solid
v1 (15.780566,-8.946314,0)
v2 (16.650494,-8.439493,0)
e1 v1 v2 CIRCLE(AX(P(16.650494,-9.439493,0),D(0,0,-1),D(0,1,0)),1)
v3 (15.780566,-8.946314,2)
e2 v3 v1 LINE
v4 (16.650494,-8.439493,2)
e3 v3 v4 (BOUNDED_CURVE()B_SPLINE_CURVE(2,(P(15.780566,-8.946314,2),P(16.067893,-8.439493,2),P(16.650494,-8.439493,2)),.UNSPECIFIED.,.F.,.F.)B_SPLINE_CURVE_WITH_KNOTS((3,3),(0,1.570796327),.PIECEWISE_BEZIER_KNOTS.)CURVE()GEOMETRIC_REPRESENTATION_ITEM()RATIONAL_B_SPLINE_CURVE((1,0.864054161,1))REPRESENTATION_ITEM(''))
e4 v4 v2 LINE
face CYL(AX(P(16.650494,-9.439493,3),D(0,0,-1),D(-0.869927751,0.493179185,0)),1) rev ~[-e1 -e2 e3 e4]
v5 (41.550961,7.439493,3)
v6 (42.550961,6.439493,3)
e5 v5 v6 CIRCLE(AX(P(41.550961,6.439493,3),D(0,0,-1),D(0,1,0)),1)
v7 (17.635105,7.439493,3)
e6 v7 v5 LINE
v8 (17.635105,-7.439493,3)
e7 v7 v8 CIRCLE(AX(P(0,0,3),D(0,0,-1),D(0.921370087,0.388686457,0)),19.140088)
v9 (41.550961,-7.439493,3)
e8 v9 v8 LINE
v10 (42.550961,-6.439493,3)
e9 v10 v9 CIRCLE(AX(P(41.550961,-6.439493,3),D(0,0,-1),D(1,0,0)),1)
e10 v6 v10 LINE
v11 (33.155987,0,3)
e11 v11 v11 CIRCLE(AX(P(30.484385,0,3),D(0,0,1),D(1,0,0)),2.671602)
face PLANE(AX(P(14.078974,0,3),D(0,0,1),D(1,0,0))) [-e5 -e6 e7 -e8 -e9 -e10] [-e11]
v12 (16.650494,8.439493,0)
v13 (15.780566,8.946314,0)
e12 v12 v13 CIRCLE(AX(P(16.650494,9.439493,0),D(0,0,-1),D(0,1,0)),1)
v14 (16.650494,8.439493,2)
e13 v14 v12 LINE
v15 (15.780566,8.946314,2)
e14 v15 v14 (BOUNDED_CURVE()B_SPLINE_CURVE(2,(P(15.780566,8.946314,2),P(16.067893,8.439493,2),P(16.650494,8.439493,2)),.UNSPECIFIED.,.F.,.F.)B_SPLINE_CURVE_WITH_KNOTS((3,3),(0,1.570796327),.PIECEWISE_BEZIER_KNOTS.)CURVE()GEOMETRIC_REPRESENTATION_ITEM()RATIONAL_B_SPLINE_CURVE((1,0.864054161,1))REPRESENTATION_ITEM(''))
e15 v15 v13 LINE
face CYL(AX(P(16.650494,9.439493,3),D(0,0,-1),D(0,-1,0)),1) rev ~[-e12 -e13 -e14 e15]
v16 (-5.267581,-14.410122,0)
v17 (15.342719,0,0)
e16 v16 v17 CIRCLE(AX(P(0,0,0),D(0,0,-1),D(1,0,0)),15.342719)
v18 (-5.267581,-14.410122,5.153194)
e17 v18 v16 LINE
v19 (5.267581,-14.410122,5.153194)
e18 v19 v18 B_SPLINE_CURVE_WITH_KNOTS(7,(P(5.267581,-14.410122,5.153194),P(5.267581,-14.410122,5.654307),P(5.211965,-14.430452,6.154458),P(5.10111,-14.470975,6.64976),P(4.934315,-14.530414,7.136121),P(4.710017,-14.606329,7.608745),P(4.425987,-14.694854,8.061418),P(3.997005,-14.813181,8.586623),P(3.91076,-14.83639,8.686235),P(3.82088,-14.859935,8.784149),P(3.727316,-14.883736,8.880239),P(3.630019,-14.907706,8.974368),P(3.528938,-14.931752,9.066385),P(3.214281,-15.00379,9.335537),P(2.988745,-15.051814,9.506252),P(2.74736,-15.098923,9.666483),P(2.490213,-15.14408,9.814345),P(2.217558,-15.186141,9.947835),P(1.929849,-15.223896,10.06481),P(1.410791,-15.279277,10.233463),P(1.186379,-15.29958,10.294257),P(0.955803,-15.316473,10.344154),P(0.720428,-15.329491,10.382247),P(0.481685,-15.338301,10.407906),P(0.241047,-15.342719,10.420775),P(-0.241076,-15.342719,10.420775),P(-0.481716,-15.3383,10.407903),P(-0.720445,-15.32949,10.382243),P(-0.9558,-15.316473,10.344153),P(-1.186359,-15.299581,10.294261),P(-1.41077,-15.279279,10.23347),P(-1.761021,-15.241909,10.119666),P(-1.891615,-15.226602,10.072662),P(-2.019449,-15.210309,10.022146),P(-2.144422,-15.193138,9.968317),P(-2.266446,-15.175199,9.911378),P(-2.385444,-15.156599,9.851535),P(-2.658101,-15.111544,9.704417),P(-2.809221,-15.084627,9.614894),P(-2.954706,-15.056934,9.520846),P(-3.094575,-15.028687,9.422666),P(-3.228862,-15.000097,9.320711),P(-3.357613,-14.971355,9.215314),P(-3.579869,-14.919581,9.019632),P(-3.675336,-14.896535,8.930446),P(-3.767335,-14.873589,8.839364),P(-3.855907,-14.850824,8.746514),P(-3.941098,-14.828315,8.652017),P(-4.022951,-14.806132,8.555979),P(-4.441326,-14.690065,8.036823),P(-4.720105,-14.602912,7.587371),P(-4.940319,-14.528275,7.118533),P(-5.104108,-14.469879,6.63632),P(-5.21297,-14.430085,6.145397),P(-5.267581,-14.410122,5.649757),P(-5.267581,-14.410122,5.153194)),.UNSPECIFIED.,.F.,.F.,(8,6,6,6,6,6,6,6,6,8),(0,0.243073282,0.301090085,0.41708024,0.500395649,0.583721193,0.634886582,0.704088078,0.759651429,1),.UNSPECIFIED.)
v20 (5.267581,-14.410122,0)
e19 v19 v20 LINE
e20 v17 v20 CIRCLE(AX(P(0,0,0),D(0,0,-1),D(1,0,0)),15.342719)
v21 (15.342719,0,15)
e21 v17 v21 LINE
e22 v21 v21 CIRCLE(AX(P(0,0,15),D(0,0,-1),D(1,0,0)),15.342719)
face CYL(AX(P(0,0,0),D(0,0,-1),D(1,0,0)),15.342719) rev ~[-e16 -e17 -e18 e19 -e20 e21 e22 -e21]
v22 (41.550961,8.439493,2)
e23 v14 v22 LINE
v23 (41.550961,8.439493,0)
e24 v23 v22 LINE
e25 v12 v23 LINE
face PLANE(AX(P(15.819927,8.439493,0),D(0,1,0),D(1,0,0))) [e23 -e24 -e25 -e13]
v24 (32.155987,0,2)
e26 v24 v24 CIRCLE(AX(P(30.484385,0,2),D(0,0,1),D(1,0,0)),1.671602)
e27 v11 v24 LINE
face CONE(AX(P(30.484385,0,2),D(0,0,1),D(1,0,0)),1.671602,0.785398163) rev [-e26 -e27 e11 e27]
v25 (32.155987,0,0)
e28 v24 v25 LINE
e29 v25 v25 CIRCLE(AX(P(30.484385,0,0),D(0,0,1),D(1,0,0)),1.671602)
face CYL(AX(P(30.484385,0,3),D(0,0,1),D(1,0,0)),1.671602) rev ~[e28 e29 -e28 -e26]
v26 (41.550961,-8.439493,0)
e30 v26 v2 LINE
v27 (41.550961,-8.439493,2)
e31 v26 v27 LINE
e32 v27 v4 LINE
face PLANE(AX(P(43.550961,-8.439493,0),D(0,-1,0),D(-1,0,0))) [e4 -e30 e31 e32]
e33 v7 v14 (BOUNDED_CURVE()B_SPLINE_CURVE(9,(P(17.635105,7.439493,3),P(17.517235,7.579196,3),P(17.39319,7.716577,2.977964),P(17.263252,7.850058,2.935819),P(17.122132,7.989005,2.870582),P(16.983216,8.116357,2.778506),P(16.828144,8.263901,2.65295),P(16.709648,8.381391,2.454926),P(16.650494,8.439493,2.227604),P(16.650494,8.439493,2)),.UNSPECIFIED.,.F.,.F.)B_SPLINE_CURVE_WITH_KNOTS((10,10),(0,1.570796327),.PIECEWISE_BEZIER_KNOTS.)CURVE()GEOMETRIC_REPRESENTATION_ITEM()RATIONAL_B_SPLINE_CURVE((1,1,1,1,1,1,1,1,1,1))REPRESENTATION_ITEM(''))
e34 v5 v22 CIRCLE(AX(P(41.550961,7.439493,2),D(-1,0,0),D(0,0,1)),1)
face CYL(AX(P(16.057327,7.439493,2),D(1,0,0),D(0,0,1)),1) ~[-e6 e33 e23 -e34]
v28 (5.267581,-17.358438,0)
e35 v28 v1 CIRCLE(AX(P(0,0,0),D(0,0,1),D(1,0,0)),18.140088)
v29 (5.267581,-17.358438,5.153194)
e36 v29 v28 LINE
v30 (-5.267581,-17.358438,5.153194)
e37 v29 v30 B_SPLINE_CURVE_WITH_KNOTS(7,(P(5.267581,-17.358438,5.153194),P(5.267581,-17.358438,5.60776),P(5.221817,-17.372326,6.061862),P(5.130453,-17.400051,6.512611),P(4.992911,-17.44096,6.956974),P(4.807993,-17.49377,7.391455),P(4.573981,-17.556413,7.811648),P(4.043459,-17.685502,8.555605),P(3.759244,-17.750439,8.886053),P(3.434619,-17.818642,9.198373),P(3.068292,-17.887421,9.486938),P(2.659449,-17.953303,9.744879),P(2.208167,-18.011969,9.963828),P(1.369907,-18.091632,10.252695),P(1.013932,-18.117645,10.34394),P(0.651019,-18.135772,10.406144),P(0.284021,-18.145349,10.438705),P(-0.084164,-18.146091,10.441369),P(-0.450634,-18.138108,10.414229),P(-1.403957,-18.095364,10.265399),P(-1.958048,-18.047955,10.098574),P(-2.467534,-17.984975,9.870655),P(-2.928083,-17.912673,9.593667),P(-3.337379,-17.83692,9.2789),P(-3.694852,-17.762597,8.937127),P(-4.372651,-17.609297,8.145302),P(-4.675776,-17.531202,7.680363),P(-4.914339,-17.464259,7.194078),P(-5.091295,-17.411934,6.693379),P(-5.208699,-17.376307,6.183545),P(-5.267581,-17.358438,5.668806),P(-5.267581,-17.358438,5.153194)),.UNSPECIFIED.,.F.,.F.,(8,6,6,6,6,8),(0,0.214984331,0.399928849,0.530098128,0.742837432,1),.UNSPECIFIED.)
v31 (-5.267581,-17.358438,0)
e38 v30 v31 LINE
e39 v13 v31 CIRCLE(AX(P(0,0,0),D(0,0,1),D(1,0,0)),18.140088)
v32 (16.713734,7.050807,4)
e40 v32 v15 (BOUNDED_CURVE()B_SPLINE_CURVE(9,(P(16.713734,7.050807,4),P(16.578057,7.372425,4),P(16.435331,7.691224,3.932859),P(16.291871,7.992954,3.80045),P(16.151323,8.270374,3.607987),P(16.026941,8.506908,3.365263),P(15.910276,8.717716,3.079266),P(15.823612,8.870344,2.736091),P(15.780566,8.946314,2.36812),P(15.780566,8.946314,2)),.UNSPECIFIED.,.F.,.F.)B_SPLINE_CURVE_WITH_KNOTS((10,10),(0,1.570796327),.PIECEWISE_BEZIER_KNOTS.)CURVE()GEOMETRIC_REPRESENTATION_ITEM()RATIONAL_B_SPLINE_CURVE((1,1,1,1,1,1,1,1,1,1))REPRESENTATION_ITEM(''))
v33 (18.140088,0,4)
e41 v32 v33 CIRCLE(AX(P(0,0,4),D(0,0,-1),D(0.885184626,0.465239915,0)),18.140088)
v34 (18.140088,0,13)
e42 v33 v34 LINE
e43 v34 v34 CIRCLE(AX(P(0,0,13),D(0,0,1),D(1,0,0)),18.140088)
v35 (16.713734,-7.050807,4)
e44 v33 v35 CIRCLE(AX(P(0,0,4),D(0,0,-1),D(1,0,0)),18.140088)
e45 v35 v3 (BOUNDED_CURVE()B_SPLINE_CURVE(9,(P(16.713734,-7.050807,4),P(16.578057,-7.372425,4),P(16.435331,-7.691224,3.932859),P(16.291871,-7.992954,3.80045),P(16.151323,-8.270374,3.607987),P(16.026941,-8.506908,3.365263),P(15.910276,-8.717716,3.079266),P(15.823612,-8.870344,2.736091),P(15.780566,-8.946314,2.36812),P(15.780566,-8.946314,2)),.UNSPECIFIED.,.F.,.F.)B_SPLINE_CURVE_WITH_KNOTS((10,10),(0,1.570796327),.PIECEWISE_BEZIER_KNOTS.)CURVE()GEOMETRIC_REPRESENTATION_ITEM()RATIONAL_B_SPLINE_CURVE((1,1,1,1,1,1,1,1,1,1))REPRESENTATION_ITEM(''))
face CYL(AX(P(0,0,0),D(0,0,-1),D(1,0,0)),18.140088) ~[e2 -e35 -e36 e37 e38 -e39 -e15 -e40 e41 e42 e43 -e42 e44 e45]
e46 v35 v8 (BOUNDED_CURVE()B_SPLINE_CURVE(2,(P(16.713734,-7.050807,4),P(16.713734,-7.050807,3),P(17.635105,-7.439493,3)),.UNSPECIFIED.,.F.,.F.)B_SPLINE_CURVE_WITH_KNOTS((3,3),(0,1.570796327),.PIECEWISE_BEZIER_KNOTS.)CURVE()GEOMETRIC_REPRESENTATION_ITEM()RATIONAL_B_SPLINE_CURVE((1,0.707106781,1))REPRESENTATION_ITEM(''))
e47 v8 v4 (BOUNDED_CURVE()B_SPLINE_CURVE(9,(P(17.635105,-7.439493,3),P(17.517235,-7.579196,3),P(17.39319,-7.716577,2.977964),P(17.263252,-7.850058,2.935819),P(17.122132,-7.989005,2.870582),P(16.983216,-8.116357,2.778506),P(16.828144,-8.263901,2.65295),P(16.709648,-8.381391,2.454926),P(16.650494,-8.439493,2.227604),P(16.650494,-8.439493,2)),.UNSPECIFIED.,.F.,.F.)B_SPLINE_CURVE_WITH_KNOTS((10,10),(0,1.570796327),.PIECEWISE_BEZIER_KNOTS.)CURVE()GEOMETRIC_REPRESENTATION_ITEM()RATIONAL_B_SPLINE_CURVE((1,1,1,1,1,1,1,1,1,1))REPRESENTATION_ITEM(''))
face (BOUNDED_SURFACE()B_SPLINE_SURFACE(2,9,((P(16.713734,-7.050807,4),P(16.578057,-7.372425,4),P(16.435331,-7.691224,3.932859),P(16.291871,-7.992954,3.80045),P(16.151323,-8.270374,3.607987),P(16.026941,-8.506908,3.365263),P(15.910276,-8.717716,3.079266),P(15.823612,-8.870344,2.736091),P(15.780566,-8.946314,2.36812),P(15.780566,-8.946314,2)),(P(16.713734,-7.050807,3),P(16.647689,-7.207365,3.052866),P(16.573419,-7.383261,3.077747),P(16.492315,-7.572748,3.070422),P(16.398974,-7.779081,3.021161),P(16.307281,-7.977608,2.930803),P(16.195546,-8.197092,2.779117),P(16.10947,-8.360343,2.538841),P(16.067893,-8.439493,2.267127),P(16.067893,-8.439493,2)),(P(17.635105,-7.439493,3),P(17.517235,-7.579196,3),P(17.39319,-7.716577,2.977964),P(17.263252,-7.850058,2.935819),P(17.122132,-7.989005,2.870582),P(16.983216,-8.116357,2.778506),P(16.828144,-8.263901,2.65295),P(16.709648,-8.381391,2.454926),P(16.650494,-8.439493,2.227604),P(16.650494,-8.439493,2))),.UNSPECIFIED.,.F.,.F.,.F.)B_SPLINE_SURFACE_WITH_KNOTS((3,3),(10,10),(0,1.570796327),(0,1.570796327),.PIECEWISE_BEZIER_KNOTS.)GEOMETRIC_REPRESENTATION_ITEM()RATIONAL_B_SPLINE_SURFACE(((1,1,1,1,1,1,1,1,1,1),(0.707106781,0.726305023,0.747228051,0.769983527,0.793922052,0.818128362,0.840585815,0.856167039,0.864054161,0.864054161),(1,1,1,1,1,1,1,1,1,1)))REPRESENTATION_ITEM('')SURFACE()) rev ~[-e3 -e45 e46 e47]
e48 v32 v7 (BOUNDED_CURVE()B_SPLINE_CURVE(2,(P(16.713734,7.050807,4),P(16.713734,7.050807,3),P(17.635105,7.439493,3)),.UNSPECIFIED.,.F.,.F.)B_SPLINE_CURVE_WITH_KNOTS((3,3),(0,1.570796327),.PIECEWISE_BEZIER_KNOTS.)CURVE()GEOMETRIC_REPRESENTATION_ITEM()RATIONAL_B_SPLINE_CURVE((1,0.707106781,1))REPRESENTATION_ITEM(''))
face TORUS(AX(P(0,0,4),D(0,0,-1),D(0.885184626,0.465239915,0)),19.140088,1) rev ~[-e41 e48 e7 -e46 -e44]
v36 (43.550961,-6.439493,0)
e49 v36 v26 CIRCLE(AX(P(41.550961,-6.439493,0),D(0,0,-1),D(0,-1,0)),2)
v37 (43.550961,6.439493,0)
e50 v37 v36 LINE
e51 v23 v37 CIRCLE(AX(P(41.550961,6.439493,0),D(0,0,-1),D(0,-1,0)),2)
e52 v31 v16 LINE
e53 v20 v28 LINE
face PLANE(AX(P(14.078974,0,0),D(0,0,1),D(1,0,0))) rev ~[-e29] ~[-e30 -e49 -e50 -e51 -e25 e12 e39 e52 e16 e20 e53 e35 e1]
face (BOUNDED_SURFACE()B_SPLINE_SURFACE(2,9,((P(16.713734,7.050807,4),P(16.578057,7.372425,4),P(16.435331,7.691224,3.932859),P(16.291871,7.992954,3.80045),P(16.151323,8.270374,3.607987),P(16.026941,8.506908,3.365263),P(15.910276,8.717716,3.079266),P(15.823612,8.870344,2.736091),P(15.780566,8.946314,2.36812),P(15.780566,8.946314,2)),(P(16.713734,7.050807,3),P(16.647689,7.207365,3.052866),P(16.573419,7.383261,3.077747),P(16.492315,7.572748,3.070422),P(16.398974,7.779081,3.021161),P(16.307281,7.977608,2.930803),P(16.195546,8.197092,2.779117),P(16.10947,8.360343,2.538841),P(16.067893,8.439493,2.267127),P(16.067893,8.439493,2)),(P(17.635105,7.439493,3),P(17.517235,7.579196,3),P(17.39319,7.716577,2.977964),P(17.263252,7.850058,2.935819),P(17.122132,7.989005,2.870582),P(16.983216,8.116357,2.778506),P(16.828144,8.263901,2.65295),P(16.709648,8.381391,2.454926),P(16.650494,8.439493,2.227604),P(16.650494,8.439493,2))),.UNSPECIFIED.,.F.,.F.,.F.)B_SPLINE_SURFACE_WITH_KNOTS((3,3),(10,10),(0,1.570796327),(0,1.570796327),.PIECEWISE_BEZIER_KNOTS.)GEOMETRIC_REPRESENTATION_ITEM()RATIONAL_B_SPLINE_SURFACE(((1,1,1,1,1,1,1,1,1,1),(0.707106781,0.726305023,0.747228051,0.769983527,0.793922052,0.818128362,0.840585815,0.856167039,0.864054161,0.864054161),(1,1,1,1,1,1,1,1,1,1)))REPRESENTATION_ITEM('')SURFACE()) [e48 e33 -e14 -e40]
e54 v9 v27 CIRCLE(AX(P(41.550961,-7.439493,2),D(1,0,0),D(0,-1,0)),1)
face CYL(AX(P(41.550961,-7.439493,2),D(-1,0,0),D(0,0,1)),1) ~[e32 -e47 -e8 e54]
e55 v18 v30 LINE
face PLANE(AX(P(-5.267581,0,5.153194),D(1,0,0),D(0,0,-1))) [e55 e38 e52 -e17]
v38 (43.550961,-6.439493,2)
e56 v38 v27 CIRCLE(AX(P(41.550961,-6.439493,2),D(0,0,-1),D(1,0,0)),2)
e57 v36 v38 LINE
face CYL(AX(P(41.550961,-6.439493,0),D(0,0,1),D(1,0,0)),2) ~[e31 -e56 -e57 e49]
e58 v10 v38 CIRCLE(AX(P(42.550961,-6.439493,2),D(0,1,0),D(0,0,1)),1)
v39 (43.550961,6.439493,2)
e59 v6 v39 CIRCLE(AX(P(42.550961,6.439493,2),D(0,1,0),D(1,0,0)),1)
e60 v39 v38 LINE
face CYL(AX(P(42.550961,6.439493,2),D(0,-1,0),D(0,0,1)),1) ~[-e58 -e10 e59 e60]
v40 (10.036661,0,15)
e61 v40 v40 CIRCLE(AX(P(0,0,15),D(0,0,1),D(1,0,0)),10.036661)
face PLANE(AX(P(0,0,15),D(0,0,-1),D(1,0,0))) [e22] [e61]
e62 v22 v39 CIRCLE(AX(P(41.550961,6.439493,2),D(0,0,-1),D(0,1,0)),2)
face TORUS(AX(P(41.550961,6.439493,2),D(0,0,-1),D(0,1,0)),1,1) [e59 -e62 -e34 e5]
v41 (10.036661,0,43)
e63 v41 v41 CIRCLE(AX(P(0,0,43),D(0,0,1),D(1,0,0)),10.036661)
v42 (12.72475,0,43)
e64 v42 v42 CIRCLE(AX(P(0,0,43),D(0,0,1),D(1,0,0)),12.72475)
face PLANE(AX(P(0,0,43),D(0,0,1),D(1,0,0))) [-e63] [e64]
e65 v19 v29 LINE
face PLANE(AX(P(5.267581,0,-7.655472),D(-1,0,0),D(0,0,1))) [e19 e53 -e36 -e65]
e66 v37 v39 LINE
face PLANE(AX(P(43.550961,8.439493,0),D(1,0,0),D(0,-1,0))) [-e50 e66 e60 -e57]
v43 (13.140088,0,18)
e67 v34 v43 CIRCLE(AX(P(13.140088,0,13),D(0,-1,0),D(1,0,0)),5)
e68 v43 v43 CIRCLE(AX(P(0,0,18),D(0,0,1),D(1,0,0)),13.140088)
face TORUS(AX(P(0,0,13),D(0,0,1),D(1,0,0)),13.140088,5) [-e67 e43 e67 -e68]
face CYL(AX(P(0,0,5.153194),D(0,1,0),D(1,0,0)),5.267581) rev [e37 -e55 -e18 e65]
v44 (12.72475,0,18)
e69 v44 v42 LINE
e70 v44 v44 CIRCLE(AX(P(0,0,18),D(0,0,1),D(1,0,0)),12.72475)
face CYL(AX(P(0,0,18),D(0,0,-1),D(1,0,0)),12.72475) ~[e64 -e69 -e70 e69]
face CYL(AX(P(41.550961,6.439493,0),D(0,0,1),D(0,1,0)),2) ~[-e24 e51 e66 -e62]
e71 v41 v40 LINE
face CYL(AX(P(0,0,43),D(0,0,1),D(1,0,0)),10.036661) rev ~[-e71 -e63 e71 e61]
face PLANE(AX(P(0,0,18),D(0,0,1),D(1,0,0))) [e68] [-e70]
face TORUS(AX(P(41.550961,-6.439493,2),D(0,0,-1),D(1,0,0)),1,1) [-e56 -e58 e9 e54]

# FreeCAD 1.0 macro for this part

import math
import FreeCAD as App
import Part
import Sketcher


def edges_at(feature, points):
    """Names of the edges that pass closest to the given points."""
    edges = feature.Shape.Edges
    near = lambda p: min(range(len(edges)), key=lambda i: edges[i].distToShape(Part.Vertex(*p))[0])
    return sorted({f"Edge{near(p) + 1}" for p in points})

doc = App.newDocument("Part")
body = doc.addObject("PartDesign::Body", "Body")

# Sketch on XY plane
sketch1 = body.newObject("Sketcher::SketchObject", "Sketch")
sketch1.AttachmentSupport = (doc.getObject("XY_Plane"), [""])
sketch1.MapMode = "FlatFace"
sketch1.addGeometry([
    Part.ArcOfCircle(Part.Circle(App.Vector(0, 0, 0), App.Vector(0, 0, 1), 18), math.radians(28), math.radians(332)),
    Part.LineSegment(App.Vector(16, -8, 0), App.Vector(44, -8, 0)),
    Part.LineSegment(App.Vector(44, -8, 0), App.Vector(44, 8, 0)),
    Part.LineSegment(App.Vector(44, 8, 0), App.Vector(16, 8, 0)),
], False)
sketch1.addConstraint([
    Sketcher.Constraint("Coincident", 0, 2, 1, 1),
    Sketcher.Constraint("Coincident", 1, 2, 2, 1),
    Sketcher.Constraint("Coincident", 2, 2, 3, 1),
    Sketcher.Constraint("Coincident", 3, 2, 0, 1),
    Sketcher.Constraint("Horizontal", 1),
    Sketcher.Constraint("Vertical", 2),
    Sketcher.Constraint("Horizontal", 3),
    Sketcher.Constraint("Coincident", 0, 3, -1, 1),
    Sketcher.Constraint("Vertical", 0, 2, 3, 2),
    Sketcher.Constraint("Radius", 0, 17.930285),
    Sketcher.Constraint("DistanceX", 1, 1, 1, 2, 27.731034),
    Sketcher.Constraint("DistanceY", 2, 1, 2, 2, 16.878986),
])
pad1 = body.newObject("PartDesign::Pad", "Pad")
pad1.Profile = sketch1
pad1.Length = 3

# Sketch on XY plane
sketch2 = body.newObject("Sketcher::SketchObject", "Sketch001")
sketch2.AttachmentSupport = (doc.getObject("XY_Plane"), [""])
sketch2.MapMode = "FlatFace"
sketch2.addGeometry(Part.Circle(App.Vector(0, 0, 0), App.Vector(0, 0, 1), 18), False)
sketch2.addConstraint([
    Sketcher.Constraint("Coincident", 0, 3, -1, 1),
    Sketcher.Constraint("Diameter", 0, 36.280176),
])
pad2 = body.newObject("PartDesign::Pad", "Pad001")
pad2.Profile = sketch2
pad2.Length = 18

# Sketch on XY plane
sketch3 = body.newObject("Sketcher::SketchObject", "Sketch002")
sketch3.AttachmentSupport = (doc.getObject("XY_Plane"), [""])
sketch3.MapMode = "FlatFace"
sketch3.AttachmentOffset = App.Placement(App.Vector(0, 0, 18), App.Rotation())
sketch3.addGeometry(Part.Circle(App.Vector(0, 0, 0), App.Vector(0, 0, 1), 13), False)
sketch3.addConstraint([
    Sketcher.Constraint("Coincident", 0, 3, -1, 1),
    Sketcher.Constraint("Diameter", 0, 25.4495),
])
pad3 = body.newObject("PartDesign::Pad", "Pad002")
pad3.Profile = sketch3
pad3.Length = 25
doc.recompute()

fillet = body.newObject("PartDesign::Fillet", "Fillet")
fillet.Base = (pad3, edges_at(pad3, [(-18.14, 0, 18)]))
fillet.Radius = 5

# Sketch on XY plane
sketch4 = body.newObject("Sketcher::SketchObject", "Sketch003")
sketch4.AttachmentSupport = (doc.getObject("XY_Plane"), [""])
sketch4.MapMode = "FlatFace"
sketch4.AttachmentOffset = App.Placement(App.Vector(0, 0, 43), App.Rotation())
sketch4.addGeometry(Part.Circle(App.Vector(0, 0, 0), App.Vector(0, 0, 1), 10), False)
sketch4.addConstraint([
    Sketcher.Constraint("Coincident", 0, 3, -1, 1),
    Sketcher.Constraint("Diameter", 0, 20.073322),
])
pocket1 = body.newObject("PartDesign::Pocket", "Pocket")
pocket1.Profile = sketch4
pocket1.Length = 39

# Sketch on XY plane
sketch5 = body.newObject("Sketcher::SketchObject", "Sketch004")
sketch5.AttachmentSupport = (doc.getObject("XY_Plane"), [""])
sketch5.MapMode = "FlatFace"
sketch5.addGeometry(Part.Circle(App.Vector(0, 0, 0), App.Vector(0, 0, 1), 15), False)
sketch5.addConstraint([
    Sketcher.Constraint("Coincident", 0, 3, -1, 1),
    Sketcher.Constraint("Diameter", 0, 30.685438),
])
pocket2 = body.newObject("PartDesign::Pocket", "Pocket001")
pocket2.Profile = sketch5
pocket2.Length = 15
pocket2.Reversed = True

# Sketch on XY plane
sketch6 = body.newObject("Sketcher::SketchObject", "Sketch005")
sketch6.AttachmentSupport = (doc.getObject("XY_Plane"), [""])
sketch6.MapMode = "FlatFace"
sketch6.AttachmentOffset = App.Placement(App.Vector(0, 0, 3), App.Rotation())
sketch6.addGeometry(Part.Circle(App.Vector(30.5, 0, 0), App.Vector(0, 0, 1), 1.7), False)
sketch6.addConstraint([
    Sketcher.Constraint("PointOnObject", 0, 3, -1),
    Sketcher.Constraint("Diameter", 0, 3.343204),
    Sketcher.Constraint("DistanceX", -1, 1, 0, 3, 30.484385),
])
pocket3 = body.newObject("PartDesign::Pocket", "Pocket002")
pocket3.Profile = sketch6
pocket3.Length = 9
doc.recompute()

chamfer = body.newObject("PartDesign::Chamfer", "Chamfer")
chamfer.Base = (pocket3, edges_at(pocket3, [(28.813, 0, 3)]))
chamfer.Size = 1

# Sketch on XZ plane
sketch7 = body.newObject("Sketcher::SketchObject", "Sketch006")
sketch7.AttachmentSupport = (doc.getObject("XZ_Plane"), [""])
sketch7.MapMode = "FlatFace"
sketch7.addGeometry([
    Part.ArcOfCircle(Part.Circle(App.Vector(0, 5, 0), App.Vector(0, 0, 1), 5), math.radians(0), math.radians(180)),
    Part.LineSegment(App.Vector(-5, 5, 0), App.Vector(-5, -8, 0)),
    Part.ArcOfCircle(Part.Circle(App.Vector(0, -8, 0), App.Vector(0, 0, 1), 5), math.radians(180), math.radians(360)),
    Part.LineSegment(App.Vector(5, -8, 0), App.Vector(5, 5, 0)),
], False)
sketch7.addConstraint([
    Sketcher.Constraint("Tangent", 0, 2, 1, 1),
    Sketcher.Constraint("Tangent", 1, 2, 2, 1),
    Sketcher.Constraint("Tangent", 2, 2, 3, 1),
    Sketcher.Constraint("Tangent", 3, 2, 0, 1),
    Sketcher.Constraint("Vertical", 1),
    Sketcher.Constraint("Vertical", 3),
    Sketcher.Constraint("PointOnObject", 0, 3, -2),
    Sketcher.Constraint("Radius", 0, 5.267581),
    Sketcher.Constraint("DistanceY", 1, 2, 1, 1, 12.808666),
    Sketcher.Constraint("DistanceY", 2, 3, -1, 1, 7.655472),
])
pocket4 = body.newObject("PartDesign::Pocket", "Pocket003")
pocket4.Profile = sketch7
pocket4.Length = 24
pocket4.Reversed = True
doc.recompute()

fillet2 = body.newObject("PartDesign::Fillet", "Fillet001")
fillet2.Base = (pocket4, edges_at(pocket4, [(43.551, -8.439, 1.5), (43.551, 8.439, 1.5)]))
fillet2.Radius = 2
doc.recompute()

fillet3 = body.newObject("PartDesign::Fillet", "Fillet002")
fillet3.Base = (fillet2, edges_at(fillet2, [
    (28.804, -8.439, 3),
    (28.804, 8.439, 3),
    (17.612, -4.346, 3),
    (17.612, 4.346, 3),
    (16.057, -8.439, 1.5),
    (42.965, -7.854, 3),
    (43.551, 0, 3),
    (42.965, 7.854, 3),
    (16.057, 8.439, 1.5),
]))
fillet3.Radius = 1

doc.recompute()
